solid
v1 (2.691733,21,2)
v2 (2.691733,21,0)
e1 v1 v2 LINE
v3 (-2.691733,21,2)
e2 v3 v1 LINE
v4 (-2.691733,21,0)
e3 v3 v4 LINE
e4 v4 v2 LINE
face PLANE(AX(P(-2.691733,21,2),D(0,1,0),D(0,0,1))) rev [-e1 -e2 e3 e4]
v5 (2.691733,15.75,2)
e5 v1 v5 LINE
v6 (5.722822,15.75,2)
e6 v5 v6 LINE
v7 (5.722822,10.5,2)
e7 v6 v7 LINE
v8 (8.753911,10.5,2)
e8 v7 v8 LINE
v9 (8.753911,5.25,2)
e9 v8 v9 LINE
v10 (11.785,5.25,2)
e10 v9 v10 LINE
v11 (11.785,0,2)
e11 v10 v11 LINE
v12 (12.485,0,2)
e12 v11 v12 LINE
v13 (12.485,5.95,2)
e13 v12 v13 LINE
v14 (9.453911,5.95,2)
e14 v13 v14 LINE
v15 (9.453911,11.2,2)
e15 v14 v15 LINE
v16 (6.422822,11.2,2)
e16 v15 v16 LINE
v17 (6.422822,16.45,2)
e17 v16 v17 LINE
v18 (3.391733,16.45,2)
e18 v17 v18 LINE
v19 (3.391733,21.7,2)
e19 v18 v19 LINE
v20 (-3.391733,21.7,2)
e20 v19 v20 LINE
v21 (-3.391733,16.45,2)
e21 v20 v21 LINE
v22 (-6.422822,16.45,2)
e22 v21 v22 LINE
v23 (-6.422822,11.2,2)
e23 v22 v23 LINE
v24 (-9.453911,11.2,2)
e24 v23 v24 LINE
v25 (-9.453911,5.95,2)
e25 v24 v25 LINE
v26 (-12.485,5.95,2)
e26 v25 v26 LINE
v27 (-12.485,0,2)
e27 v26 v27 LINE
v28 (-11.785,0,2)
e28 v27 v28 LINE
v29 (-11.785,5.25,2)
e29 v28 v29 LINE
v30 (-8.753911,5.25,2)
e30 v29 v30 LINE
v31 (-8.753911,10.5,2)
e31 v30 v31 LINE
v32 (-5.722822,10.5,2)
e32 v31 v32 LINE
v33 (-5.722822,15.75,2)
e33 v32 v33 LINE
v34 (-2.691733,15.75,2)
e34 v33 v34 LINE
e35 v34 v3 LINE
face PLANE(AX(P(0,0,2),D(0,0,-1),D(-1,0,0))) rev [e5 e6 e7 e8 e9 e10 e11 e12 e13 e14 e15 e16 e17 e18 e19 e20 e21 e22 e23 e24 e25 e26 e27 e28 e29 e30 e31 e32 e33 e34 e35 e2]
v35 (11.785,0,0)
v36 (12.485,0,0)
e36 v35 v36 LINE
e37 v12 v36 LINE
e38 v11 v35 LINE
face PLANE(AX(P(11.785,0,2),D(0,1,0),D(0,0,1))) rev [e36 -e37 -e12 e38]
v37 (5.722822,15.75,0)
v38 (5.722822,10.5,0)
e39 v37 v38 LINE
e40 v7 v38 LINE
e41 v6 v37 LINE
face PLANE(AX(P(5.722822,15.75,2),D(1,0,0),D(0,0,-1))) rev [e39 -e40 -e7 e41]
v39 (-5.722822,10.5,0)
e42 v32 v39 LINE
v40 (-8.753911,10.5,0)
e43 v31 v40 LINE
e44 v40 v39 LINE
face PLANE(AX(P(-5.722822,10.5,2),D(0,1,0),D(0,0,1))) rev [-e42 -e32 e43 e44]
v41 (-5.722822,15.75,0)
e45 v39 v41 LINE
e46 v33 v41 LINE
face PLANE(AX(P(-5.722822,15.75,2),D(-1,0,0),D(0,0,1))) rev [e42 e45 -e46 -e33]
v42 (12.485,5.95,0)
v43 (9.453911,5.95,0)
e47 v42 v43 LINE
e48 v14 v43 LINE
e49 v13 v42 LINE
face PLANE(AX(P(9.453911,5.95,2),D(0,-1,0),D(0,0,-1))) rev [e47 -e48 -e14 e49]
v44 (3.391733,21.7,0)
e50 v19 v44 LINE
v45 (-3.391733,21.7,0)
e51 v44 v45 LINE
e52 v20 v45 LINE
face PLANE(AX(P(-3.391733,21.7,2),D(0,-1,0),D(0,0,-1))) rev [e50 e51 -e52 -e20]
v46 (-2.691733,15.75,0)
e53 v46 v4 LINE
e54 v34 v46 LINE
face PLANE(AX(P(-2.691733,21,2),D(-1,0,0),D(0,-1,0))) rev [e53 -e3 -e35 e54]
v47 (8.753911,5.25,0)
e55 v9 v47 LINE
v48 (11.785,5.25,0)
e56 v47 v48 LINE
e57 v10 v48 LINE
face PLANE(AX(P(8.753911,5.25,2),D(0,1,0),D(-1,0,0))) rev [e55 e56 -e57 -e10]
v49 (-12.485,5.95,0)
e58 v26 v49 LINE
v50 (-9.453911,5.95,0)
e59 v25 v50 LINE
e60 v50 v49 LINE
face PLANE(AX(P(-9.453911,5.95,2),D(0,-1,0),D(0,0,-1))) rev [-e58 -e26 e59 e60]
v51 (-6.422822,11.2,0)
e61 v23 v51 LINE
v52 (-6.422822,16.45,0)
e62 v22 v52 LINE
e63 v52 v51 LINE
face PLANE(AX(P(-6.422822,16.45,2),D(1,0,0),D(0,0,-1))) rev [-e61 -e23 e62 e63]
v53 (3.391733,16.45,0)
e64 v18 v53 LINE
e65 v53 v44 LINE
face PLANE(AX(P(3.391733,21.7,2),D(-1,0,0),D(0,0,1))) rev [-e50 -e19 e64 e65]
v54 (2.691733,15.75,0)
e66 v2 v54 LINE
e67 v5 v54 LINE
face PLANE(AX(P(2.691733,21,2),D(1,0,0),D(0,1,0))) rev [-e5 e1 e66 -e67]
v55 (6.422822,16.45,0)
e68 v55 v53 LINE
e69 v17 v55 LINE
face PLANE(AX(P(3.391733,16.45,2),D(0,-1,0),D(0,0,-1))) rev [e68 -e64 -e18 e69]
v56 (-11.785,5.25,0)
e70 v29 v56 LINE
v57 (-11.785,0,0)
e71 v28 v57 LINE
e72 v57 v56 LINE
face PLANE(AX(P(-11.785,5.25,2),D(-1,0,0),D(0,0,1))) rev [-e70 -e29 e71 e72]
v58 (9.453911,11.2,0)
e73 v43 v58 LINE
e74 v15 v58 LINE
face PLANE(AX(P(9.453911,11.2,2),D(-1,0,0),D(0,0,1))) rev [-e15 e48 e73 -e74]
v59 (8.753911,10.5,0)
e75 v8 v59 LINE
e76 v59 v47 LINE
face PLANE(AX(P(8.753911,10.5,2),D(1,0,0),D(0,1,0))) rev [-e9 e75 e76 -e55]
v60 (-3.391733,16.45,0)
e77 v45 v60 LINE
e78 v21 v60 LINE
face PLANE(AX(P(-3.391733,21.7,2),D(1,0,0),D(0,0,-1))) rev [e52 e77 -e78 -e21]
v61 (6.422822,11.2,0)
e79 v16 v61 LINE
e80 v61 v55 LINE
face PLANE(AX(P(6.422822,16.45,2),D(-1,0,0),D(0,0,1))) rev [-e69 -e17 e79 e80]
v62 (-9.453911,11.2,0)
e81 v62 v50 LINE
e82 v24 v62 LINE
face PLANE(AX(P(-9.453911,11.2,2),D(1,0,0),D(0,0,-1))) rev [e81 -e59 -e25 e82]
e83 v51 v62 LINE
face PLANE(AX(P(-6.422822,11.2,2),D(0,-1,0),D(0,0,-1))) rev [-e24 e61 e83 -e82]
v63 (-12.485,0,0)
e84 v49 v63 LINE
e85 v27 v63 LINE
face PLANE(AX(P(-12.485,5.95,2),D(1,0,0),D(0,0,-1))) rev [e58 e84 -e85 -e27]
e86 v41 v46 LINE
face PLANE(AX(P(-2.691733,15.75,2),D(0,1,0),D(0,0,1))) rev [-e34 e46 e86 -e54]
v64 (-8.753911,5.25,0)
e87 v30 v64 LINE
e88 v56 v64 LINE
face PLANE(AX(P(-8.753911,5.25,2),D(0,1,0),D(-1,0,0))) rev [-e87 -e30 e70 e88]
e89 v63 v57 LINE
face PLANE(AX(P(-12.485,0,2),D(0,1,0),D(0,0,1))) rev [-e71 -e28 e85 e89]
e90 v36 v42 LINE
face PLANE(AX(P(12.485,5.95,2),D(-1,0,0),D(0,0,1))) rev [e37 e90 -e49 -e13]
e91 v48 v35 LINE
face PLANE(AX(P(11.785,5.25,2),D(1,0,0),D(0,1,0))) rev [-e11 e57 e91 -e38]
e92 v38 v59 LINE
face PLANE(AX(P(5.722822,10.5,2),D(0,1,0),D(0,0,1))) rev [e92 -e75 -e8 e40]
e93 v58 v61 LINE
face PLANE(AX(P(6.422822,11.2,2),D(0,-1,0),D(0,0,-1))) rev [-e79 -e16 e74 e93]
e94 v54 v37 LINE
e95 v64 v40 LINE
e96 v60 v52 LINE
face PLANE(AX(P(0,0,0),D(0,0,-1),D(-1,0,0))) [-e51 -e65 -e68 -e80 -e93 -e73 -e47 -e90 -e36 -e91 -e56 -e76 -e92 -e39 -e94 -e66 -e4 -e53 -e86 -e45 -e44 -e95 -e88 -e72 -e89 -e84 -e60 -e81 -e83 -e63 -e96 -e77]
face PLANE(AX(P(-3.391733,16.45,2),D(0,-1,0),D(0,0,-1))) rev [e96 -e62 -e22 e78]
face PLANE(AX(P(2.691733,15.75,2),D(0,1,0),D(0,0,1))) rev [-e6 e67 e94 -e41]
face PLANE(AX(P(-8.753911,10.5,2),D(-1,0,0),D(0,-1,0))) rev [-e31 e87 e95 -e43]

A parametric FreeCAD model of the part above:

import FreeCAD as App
import Part
import Sketcher
Q = App.Units.Quantity

doc = App.newDocument("Part")
body = doc.addObject("PartDesign::Body", "Body")

# Sketch on XY plane
sketch1 = doc.addObject("Sketcher::SketchObject", "Sketch")
body.addObject(sketch1)
sketch1.AttachmentSupport = (doc.XY_Plane, [""])
sketch1.MapMode = "FlatFace"
sketch1.addGeometry([
    Part.LineSegment(App.Vector(-2.691733, 21, 0), App.Vector(2.691733, 21, 0)),  # 0
    Part.LineSegment(App.Vector(2.691733, 21, 0), App.Vector(2.691733, 15.75, 0)),  # 1
    Part.LineSegment(App.Vector(2.691733, 15.75, 0), App.Vector(5.722822, 15.75, 0)),  # 2
    Part.LineSegment(App.Vector(5.722822, 15.75, 0), App.Vector(5.722822, 10.5, 0)),  # 3
    Part.LineSegment(App.Vector(5.722822, 10.5, 0), App.Vector(8.753911, 10.5, 0)),  # 4
    Part.LineSegment(App.Vector(8.753911, 10.5, 0), App.Vector(8.753911, 5.25, 0)),  # 5
    Part.LineSegment(App.Vector(8.753911, 5.25, 0), App.Vector(11.785, 5.25, 0)),  # 6
    Part.LineSegment(App.Vector(11.785, 5.25, 0), App.Vector(11.785, 0, 0)),  # 7
    Part.LineSegment(App.Vector(11.785, 0, 0), App.Vector(12.485, 0, 0)),  # 8
    Part.LineSegment(App.Vector(12.485, 0, 0), App.Vector(12.485, 5.95, 0)),  # 9
    Part.LineSegment(App.Vector(12.485, 5.95, 0), App.Vector(9.453911, 5.95, 0)),  # 10
    Part.LineSegment(App.Vector(9.453911, 5.95, 0), App.Vector(9.453911, 11.2, 0)),  # 11
    Part.LineSegment(App.Vector(9.453911, 11.2, 0), App.Vector(6.422822, 11.2, 0)),  # 12
    Part.LineSegment(App.Vector(6.422822, 11.2, 0), App.Vector(6.422822, 16.45, 0)),  # 13
    Part.LineSegment(App.Vector(6.422822, 16.45, 0), App.Vector(3.391733, 16.45, 0)),  # 14
    Part.LineSegment(App.Vector(3.391733, 16.45, 0), App.Vector(3.391733, 21.7, 0)),  # 15
    Part.LineSegment(App.Vector(3.391733, 21.7, 0), App.Vector(-3.391733, 21.7, 0)),  # 16
    Part.LineSegment(App.Vector(-3.391733, 21.7, 0), App.Vector(-3.391733, 16.45, 0)),  # 17
    Part.LineSegment(App.Vector(-3.391733, 16.45, 0), App.Vector(-6.422822, 16.45, 0)),  # 18
    Part.LineSegment(App.Vector(-6.422822, 16.45, 0), App.Vector(-6.422822, 11.2, 0)),  # 19
    Part.LineSegment(App.Vector(-6.422822, 11.2, 0), App.Vector(-9.453911, 11.2, 0)),  # 20
    Part.LineSegment(App.Vector(-9.453911, 11.2, 0), App.Vector(-9.453911, 5.95, 0)),  # 21
    Part.LineSegment(App.Vector(-9.453911, 5.95, 0), App.Vector(-12.485, 5.95, 0)),  # 22
    Part.LineSegment(App.Vector(-12.485, 5.95, 0), App.Vector(-12.485, 0, 0)),  # 23
    Part.LineSegment(App.Vector(-12.485, 0, 0), App.Vector(-11.785, 0, 0)),  # 24
    Part.LineSegment(App.Vector(-11.785, 0, 0), App.Vector(-11.785, 5.25, 0)),  # 25
    Part.LineSegment(App.Vector(-11.785, 5.25, 0), App.Vector(-8.753911, 5.25, 0)),  # 26
    Part.LineSegment(App.Vector(-8.753911, 5.25, 0), App.Vector(-8.753911, 10.5, 0)),  # 27
    Part.LineSegment(App.Vector(-8.753911, 10.5, 0), App.Vector(-5.722822, 10.5, 0)),  # 28
    Part.LineSegment(App.Vector(-5.722822, 10.5, 0), App.Vector(-5.722822, 15.75, 0)),  # 29
    Part.LineSegment(App.Vector(-5.722822, 15.75, 0), App.Vector(-2.691733, 15.75, 0)),  # 30
    Part.LineSegment(App.Vector(-2.691733, 15.75, 0), App.Vector(-2.691733, 21, 0)),  # 31
], False)
sketch1.addConstraint([
    Sketcher.Constraint("Coincident", 0, 2, 1, 1),
    Sketcher.Constraint("Coincident", 1, 2, 2, 1),
    Sketcher.Constraint("Coincident", 2, 2, 3, 1),
    Sketcher.Constraint("Coincident", 3, 2, 4, 1),
    Sketcher.Constraint("Coincident", 4, 2, 5, 1),
    Sketcher.Constraint("Coincident", 5, 2, 6, 1),
    Sketcher.Constraint("Coincident", 6, 2, 7, 1),
    Sketcher.Constraint("Coincident", 7, 2, 8, 1),
    Sketcher.Constraint("Coincident", 8, 2, 9, 1),
    Sketcher.Constraint("Coincident", 9, 2, 10, 1),
    Sketcher.Constraint("Coincident", 10, 2, 11, 1),
    Sketcher.Constraint("Coincident", 11, 2, 12, 1),
    Sketcher.Constraint("Coincident", 12, 2, 13, 1),
    Sketcher.Constraint("Coincident", 13, 2, 14, 1),
    Sketcher.Constraint("Coincident", 14, 2, 15, 1),
    Sketcher.Constraint("Coincident", 15, 2, 16, 1),
    Sketcher.Constraint("Coincident", 16, 2, 17, 1),
    Sketcher.Constraint("Coincident", 17, 2, 18, 1),
    Sketcher.Constraint("Coincident", 18, 2, 19, 1),
    Sketcher.Constraint("Coincident", 19, 2, 20, 1),
    Sketcher.Constraint("Coincident", 20, 2, 21, 1),
    Sketcher.Constraint("Coincident", 21, 2, 22, 1),
    Sketcher.Constraint("Coincident", 22, 2, 23, 1),
    Sketcher.Constraint("Coincident", 23, 2, 24, 1),
    Sketcher.Constraint("Coincident", 24, 2, 25, 1),
    Sketcher.Constraint("Coincident", 25, 2, 26, 1),
    Sketcher.Constraint("Coincident", 26, 2, 27, 1),
    Sketcher.Constraint("Coincident", 27, 2, 28, 1),
    Sketcher.Constraint("Coincident", 28, 2, 29, 1),
    Sketcher.Constraint("Coincident", 29, 2, 30, 1),
    Sketcher.Constraint("Coincident", 30, 2, 31, 1),
    Sketcher.Constraint("Coincident", 31, 2, 0, 1),
    Sketcher.Constraint("Horizontal", 0),
    Sketcher.Constraint("Vertical", 1),
    Sketcher.Constraint("Horizontal", 2),
    Sketcher.Constraint("Vertical", 3),
    Sketcher.Constraint("Horizontal", 4),
    Sketcher.Constraint("Vertical", 5),
    Sketcher.Constraint("Horizontal", 6),
    Sketcher.Constraint("Vertical", 7),
    Sketcher.Constraint("Horizontal", 8),
    Sketcher.Constraint("Vertical", 9),
    Sketcher.Constraint("Horizontal", 10),
    Sketcher.Constraint("Vertical", 11),
    Sketcher.Constraint("Horizontal", 12),
    Sketcher.Constraint("Vertical", 13),
    Sketcher.Constraint("Horizontal", 14),
    Sketcher.Constraint("Vertical", 15),
    Sketcher.Constraint("Horizontal", 16),
    Sketcher.Constraint("Vertical", 17),
    Sketcher.Constraint("Horizontal", 18),
    Sketcher.Constraint("Vertical", 19),
    Sketcher.Constraint("Horizontal", 20),
    Sketcher.Constraint("Vertical", 21),
    Sketcher.Constraint("Horizontal", 22),
    Sketcher.Constraint("Vertical", 23),
    Sketcher.Constraint("Horizontal", 24),
    Sketcher.Constraint("Vertical", 25),
    Sketcher.Constraint("Horizontal", 26),
    Sketcher.Constraint("Vertical", 27),
    Sketcher.Constraint("Horizontal", 28),
    Sketcher.Constraint("Vertical", 29),
    Sketcher.Constraint("Horizontal", 30),
    Sketcher.Constraint("Vertical", 31),
    Sketcher.Constraint("Symmetric", 8, 2, 23, 2, -1, 1),
    Sketcher.Constraint("Symmetric", 14, 2, 17, 2, -2),
    Sketcher.Constraint("Symmetric", 12, 2, 19, 2, -2),
    Sketcher.Constraint("Symmetric", 10, 2, 21, 2, -2),
    Sketcher.Constraint("Symmetric", 7, 2, 24, 2, -2),
    Sketcher.Constraint("Symmetric", 5, 2, 26, 2, -2),
    Sketcher.Constraint("Symmetric", 3, 2, 28, 2, -2),
    Sketcher.Constraint("Symmetric", 1, 2, 30, 2, -2),
    Sketcher.Constraint("Equal", 2, 4),
    Sketcher.Constraint("Equal", 4, 6),
    Sketcher.Constraint("Equal", 6, 10),
    Sketcher.Constraint("Equal", 10, 12),
    Sketcher.Constraint("Equal", 12, 14),
    Sketcher.Constraint("Equal", 1, 3),
    Sketcher.Constraint("Equal", 3, 5),
    Sketcher.Constraint("Equal", 5, 7),
    Sketcher.Constraint("Equal", 7, 11),
    Sketcher.Constraint("Equal", 11, 13),
    Sketcher.Constraint("Equal", 13, 15),
    Sketcher.Constraint("DistanceX", 8, 1, 8, 2, Q("0.7 mm")),
    Sketcher.Constraint("DistanceY", -1, 1, 0, 2, Q("21 mm")),
    Sketcher.Constraint("DistanceY", 9, 1, 9, 2, Q("5.95 mm")),
    Sketcher.Constraint("DistanceX", -1, 1, 6, 2, Q("11.785 mm")),
    Sketcher.Constraint("DistanceX", 2, 1, 2, 2, Q("3.031089 mm")),
])
pad1 = doc.addObject("PartDesign::Pad", "Pad")
body.addObject(pad1)
pad1.Profile = sketch1
pad1.Length = 2

doc.recompute()
